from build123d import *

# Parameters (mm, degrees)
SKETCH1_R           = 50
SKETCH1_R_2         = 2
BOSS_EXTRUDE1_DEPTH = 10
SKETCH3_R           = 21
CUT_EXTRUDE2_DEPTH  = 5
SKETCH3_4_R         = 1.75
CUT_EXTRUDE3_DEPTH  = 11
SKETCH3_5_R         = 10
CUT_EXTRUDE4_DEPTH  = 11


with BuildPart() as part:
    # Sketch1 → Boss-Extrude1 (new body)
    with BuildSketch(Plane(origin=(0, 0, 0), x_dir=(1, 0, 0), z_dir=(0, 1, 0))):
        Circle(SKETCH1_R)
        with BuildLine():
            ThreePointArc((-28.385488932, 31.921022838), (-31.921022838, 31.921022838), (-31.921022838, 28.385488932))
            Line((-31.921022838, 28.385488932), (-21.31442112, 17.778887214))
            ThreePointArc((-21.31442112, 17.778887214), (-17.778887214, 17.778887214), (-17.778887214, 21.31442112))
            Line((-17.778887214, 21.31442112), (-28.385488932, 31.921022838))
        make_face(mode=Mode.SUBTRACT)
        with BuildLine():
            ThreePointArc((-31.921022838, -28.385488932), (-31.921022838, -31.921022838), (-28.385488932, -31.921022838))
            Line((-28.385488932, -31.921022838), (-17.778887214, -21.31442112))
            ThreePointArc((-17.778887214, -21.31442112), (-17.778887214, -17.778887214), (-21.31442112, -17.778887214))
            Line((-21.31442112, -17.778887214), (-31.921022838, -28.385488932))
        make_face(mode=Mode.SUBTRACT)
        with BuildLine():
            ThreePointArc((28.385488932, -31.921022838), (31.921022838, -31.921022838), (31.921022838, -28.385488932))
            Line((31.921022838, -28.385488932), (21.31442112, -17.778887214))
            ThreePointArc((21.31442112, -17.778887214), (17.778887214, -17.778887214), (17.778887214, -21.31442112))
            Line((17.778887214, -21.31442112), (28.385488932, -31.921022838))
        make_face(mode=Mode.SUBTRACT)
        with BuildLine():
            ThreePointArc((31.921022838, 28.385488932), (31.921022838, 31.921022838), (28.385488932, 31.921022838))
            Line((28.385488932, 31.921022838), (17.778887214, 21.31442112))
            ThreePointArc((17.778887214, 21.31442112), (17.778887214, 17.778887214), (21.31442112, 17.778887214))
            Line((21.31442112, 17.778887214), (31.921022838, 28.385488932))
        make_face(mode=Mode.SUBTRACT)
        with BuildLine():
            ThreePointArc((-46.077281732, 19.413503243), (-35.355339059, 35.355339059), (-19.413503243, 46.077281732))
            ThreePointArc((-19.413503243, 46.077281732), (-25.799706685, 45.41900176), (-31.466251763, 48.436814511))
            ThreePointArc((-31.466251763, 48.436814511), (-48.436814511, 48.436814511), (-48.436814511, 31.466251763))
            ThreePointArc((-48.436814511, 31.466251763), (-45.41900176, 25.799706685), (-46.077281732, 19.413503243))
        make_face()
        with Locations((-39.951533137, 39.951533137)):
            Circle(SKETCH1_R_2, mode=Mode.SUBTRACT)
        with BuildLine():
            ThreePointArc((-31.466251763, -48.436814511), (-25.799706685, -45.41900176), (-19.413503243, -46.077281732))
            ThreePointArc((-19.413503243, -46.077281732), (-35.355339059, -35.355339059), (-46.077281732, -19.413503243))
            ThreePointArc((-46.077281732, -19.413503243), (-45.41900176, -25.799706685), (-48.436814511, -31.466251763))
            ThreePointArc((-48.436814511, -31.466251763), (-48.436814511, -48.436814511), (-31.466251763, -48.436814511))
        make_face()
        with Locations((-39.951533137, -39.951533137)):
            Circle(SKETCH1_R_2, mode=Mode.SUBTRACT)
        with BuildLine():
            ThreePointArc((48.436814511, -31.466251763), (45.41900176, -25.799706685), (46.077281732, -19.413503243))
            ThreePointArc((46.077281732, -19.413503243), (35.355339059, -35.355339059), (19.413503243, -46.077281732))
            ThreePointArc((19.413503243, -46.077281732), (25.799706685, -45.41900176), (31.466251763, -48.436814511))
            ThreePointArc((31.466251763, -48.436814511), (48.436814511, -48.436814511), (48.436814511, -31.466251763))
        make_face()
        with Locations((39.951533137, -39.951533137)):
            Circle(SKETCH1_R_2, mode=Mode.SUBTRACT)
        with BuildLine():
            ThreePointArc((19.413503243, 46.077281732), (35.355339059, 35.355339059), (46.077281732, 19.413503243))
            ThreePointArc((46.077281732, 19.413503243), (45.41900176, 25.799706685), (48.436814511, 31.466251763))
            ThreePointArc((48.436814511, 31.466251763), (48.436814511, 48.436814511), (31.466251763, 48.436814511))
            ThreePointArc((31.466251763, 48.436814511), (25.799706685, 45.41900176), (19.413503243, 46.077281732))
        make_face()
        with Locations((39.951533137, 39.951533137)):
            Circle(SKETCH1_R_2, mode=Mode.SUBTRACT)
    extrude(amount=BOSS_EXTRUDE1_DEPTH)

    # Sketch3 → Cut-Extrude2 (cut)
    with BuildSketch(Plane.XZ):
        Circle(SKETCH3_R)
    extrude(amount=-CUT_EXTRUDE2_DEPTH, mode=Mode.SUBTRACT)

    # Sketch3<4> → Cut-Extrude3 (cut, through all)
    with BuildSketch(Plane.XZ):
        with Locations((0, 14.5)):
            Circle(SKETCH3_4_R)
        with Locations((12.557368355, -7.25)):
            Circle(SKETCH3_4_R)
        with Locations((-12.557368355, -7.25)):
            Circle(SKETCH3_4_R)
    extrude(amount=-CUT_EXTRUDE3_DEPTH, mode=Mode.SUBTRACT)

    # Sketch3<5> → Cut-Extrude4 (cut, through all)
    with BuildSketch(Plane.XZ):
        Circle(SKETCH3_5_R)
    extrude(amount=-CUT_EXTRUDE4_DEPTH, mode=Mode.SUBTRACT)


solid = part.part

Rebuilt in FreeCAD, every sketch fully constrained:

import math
import FreeCAD as App
import Part
import Sketcher
from FreeCAD import Vector
Q = App.Units.Quantity

doc = App.newDocument("Part")
body = doc.addObject("PartDesign::Body", "Body")

sketch1 = doc.addObject("Sketcher::SketchObject", "Sketch")
body.addObject(sketch1)
sketch1.AttachmentSupport = (doc.XZ_Plane, [""])
sketch1.MapMode = "FlatFace"
sketch1.addGeometry([
    Part.ArcOfCircle(Part.Circle(Vector(-23.7, -56.2, 0), Vector(0, 0, 1), 11), math.radians(67), math.radians(135)),
    Part.ArcOfCircle(Part.Circle(Vector(-40, -40, 0), Vector(0, 0, 1), 12), math.radians(135), math.radians(315)),
    Part.ArcOfCircle(Part.Circle(Vector(-56.2, -23.7, 0), Vector(0, 0, 1), 11), math.radians(-45), math.radians(23)),
    Part.ArcOfCircle(Part.Circle(Vector(0, 0, 0), Vector(0, 0, 1), 50), math.radians(157), math.radians(203)),
    Part.ArcOfCircle(Part.Circle(Vector(-56.2, 23.7, 0), Vector(0, 0, 1), 11), math.radians(-23), math.radians(45)),
    Part.ArcOfCircle(Part.Circle(Vector(-40, 40, 0), Vector(0, 0, 1), 12), math.radians(45), math.radians(225)),
    Part.ArcOfCircle(Part.Circle(Vector(-23.7, 56.2, 0), Vector(0, 0, 1), 11), math.radians(-135), math.radians(-67)),
    Part.ArcOfCircle(Part.Circle(Vector(0, 0, 0), Vector(0, 0, 1), 50), math.radians(67), math.radians(113)),
    Part.ArcOfCircle(Part.Circle(Vector(23.7, 56.2, 0), Vector(0, 0, 1), 11), math.radians(-113), math.radians(-45)),
    Part.ArcOfCircle(Part.Circle(Vector(40, 40, 0), Vector(0, 0, 1), 12), math.radians(-45), math.radians(135)),
    Part.ArcOfCircle(Part.Circle(Vector(56.2, 23.7, 0), Vector(0, 0, 1), 11), math.radians(135), math.radians(203)),
    Part.ArcOfCircle(Part.Circle(Vector(0, 0, 0), Vector(0, 0, 1), 50), math.radians(-23), math.radians(23)),
    Part.ArcOfCircle(Part.Circle(Vector(56.2, -23.7, 0), Vector(0, 0, 1), 11), math.radians(157), math.radians(225)),
    Part.ArcOfCircle(Part.Circle(Vector(40, -40, 0), Vector(0, 0, 1), 12), math.radians(-135), math.radians(45)),
    Part.ArcOfCircle(Part.Circle(Vector(23.7, -56.2, 0), Vector(0, 0, 1), 11), math.radians(45), math.radians(113)),
    Part.ArcOfCircle(Part.Circle(Vector(0, 0, 0), Vector(0, 0, 1), 50), math.radians(-113), math.radians(-67)),
    Part.Circle(Vector(-40, 40, 0), Vector(0, 0, 1), 2),
    Part.ArcOfCircle(Part.Circle(Vector(-30.2, 30.2, 0), Vector(0, 0, 1), 2.5), math.radians(45), math.radians(225)),
    Part.LineSegment(Vector(-31.9, 28.4, 0), Vector(-21.3, 17.8, 0)),
    Part.ArcOfCircle(Part.Circle(Vector(-19.5, 19.5, 0), Vector(0, 0, 1), 2.5), math.radians(-135), math.radians(45)),
    Part.LineSegment(Vector(-17.8, 21.3, 0), Vector(-28.4, 31.9, 0)),
    Part.Circle(Vector(40, 40, 0), Vector(0, 0, 1), 2),
    Part.ArcOfCircle(Part.Circle(Vector(30.2, 30.2, 0), Vector(0, 0, 1), 2.5), math.radians(-45), math.radians(135)),
    Part.LineSegment(Vector(28.4, 31.9, 0), Vector(17.8, 21.3, 0)),
    Part.ArcOfCircle(Part.Circle(Vector(19.5, 19.5, 0), Vector(0, 0, 1), 2.5), math.radians(135), math.radians(315)),
    Part.LineSegment(Vector(21.3, 17.8, 0), Vector(31.9, 28.4, 0)),
    Part.ArcOfCircle(Part.Circle(Vector(-30.2, -30.2, 0), Vector(0, 0, 1), 2.5), math.radians(135), math.radians(315)),
    Part.LineSegment(Vector(-28.4, -31.9, 0), Vector(-17.8, -21.3, 0)),
    Part.ArcOfCircle(Part.Circle(Vector(-19.5, -19.5, 0), Vector(0, 0, 1), 2.5), math.radians(-45), math.radians(135)),
    Part.LineSegment(Vector(-21.3, -17.8, 0), Vector(-31.9, -28.4, 0)),
    Part.Circle(Vector(-40, -40, 0), Vector(0, 0, 1), 2),
    Part.ArcOfCircle(Part.Circle(Vector(30.2, -30.2, 0), Vector(0, 0, 1), 2.5), math.radians(-135), math.radians(45)),
    Part.LineSegment(Vector(31.9, -28.4, 0), Vector(21.3, -17.8, 0)),
    Part.ArcOfCircle(Part.Circle(Vector(19.5, -19.5, 0), Vector(0, 0, 1), 2.5), math.radians(45), math.radians(225)),
    Part.LineSegment(Vector(17.8, -21.3, 0), Vector(28.4, -31.9, 0)),
    Part.Circle(Vector(40, -40, 0), Vector(0, 0, 1), 2),
], False)
sketch1.addConstraint([
    Sketcher.Constraint("Tangent", 0, 2, 1, 2),
    Sketcher.Constraint("Tangent", 1, 1, 2, 1),
    Sketcher.Constraint("Tangent", 2, 2, 3, 2),
    Sketcher.Constraint("Tangent", 3, 1, 4, 1),
    Sketcher.Constraint("Tangent", 4, 2, 5, 2),
    Sketcher.Constraint("Tangent", 5, 1, 6, 1),
    Sketcher.Constraint("Tangent", 6, 2, 7, 2),
    Sketcher.Constraint("Tangent", 7, 1, 8, 1),
    Sketcher.Constraint("Tangent", 8, 2, 9, 2),
    Sketcher.Constraint("Tangent", 9, 1, 10, 1),
    Sketcher.Constraint("Tangent", 10, 2, 11, 2),
    Sketcher.Constraint("Tangent", 11, 1, 12, 1),
    Sketcher.Constraint("Tangent", 12, 2, 13, 2),
    Sketcher.Constraint("Tangent", 13, 1, 14, 1),
    Sketcher.Constraint("Tangent", 14, 2, 15, 2),
    Sketcher.Constraint("Tangent", 15, 1, 0, 1),
    Sketcher.Constraint("Tangent", 17, 2, 18, 1),
    Sketcher.Constraint("Tangent", 18, 2, 19, 1),
    Sketcher.Constraint("Tangent", 19, 2, 20, 1),
    Sketcher.Constraint("Tangent", 20, 2, 17, 1),
    Sketcher.Constraint("Tangent", 22, 2, 23, 1),
    Sketcher.Constraint("Tangent", 23, 2, 24, 1),
    Sketcher.Constraint("Tangent", 24, 2, 25, 1),
    Sketcher.Constraint("Tangent", 25, 2, 22, 1),
    Sketcher.Constraint("Tangent", 26, 2, 27, 1),
    Sketcher.Constraint("Tangent", 27, 2, 28, 1),
    Sketcher.Constraint("Tangent", 28, 2, 29, 1),
    Sketcher.Constraint("Tangent", 29, 2, 26, 1),
    Sketcher.Constraint("Tangent", 31, 2, 32, 1),
    Sketcher.Constraint("Tangent", 32, 2, 33, 1),
    Sketcher.Constraint("Tangent", 33, 2, 34, 1),
    Sketcher.Constraint("Tangent", 34, 2, 31, 1),
    Sketcher.Constraint("Coincident", 3, 3, -1, 1),
    Sketcher.Constraint("Coincident", 7, 3, -1, 1),
    Sketcher.Constraint("Coincident", 11, 3, -1, 1),
    Sketcher.Constraint("Coincident", 15, 3, -1, 1),
    Sketcher.Constraint("Coincident", 16, 3, 5, 3),
    Sketcher.Constraint("Coincident", 21, 3, 9, 3),
    Sketcher.Constraint("Coincident", 30, 3, 1, 3),
    Sketcher.Constraint("Coincident", 35, 3, 13, 3),
    Sketcher.Constraint("Equal", 0, 2),
    Sketcher.Constraint("Equal", 2, 4),
    Sketcher.Constraint("Equal", 1, 5),
    Sketcher.Constraint("Equal", 4, 6),
    Sketcher.Constraint("Equal", 3, 7),
    Sketcher.Constraint("Equal", 6, 8),
    Sketcher.Constraint("Equal", 5, 9),
    Sketcher.Constraint("Equal", 8, 10),
    Sketcher.Constraint("Equal", 7, 11),
    Sketcher.Constraint("Equal", 10, 12),
    Sketcher.Constraint("Equal", 9, 13),
    Sketcher.Constraint("Equal", 12, 14),
    Sketcher.Constraint("Equal", 11, 15),
    Sketcher.Constraint("Equal", 17, 19),
    Sketcher.Constraint("Equal", 16, 21),
    Sketcher.Constraint("Equal", 19, 22),
    Sketcher.Constraint("Equal", 22, 24),
    Sketcher.Constraint("Equal", 24, 26),
    Sketcher.Constraint("Equal", 26, 28),
    Sketcher.Constraint("Equal", 21, 30),
    Sketcher.Constraint("Equal", 28, 31),
    Sketcher.Constraint("Equal", 31, 33),
    Sketcher.Constraint("Equal", 30, 35),
    Sketcher.Constraint("Symmetric", 1, 3, 9, 3, -1, 1),
    Sketcher.Constraint("Symmetric", 5, 3, 13, 3, -1, 1),
    Sketcher.Constraint("Symmetric", 22, 3, 26, 3, -1, 1),
    Sketcher.Constraint("Symmetric", 24, 3, 28, 3, -1, 1),
    Sketcher.Constraint("Symmetric", 17, 3, 31, 3, -1, 1),
    Sketcher.Constraint("Symmetric", 19, 3, 33, 3, -1, 1),
    Sketcher.Constraint("Symmetric", 5, 3, 9, 3, -2),
    Sketcher.Constraint("Symmetric", 17, 3, 22, 3, -2),
    Sketcher.Constraint("Symmetric", 19, 3, 24, 3, -2),
    Sketcher.Constraint("Perpendicular", 20, 23),
    Sketcher.Constraint("Diameter", 16, Q("4 mm")),
    Sketcher.Constraint("Radius", 1, Q("12 mm")),
    Sketcher.Constraint("Radius", 3, Q("50 mm")),
    Sketcher.Constraint("Radius", 17, Q("2.5 mm")),
    Sketcher.Constraint("Distance", 18, Q("15 mm")),
    Sketcher.Constraint("Radius", 0, Q("11.003289 mm")),
    Sketcher.Constraint("DistanceX", 0, 2, 0, 3, Q("7.780501 mm")),
    Sketcher.Constraint("DistanceX", 2, 3, 1, 1, Q("7.780501 mm")),
    Sketcher.Constraint("DistanceY", -1, 1, 17, 2, Q("28.385489 mm")),
    Sketcher.Constraint("DistanceX", 18, 2, -1, 1, Q("21.314421 mm")),
])
pad1 = doc.addObject("PartDesign::Pad", "Pad")
body.addObject(pad1)
pad1.Profile = sketch1
pad1.Length = 10
pad1.Reversed = True

sketch2 = doc.addObject("Sketcher::SketchObject", "Sketch001")
body.addObject(sketch2)
sketch2.AttachmentSupport = (doc.XZ_Plane, [""])
sketch2.MapMode = "FlatFace"
sketch2.addGeometry(Part.Circle(Vector(0, 0, 0), Vector(0, 0, 1), 21), False)
sketch2.addConstraint([
    Sketcher.Constraint("Coincident", 0, 3, -1, 1),
    Sketcher.Constraint("Diameter", 0, Q("42 mm")),
])
pocket1 = doc.addObject("PartDesign::Pocket", "Pocket")
body.addObject(pocket1)
pocket1.Profile = sketch2
pocket1.Length = 5

sketch3 = doc.addObject("Sketcher::SketchObject", "Sketch002")
body.addObject(sketch3)
sketch3.AttachmentSupport = (doc.XZ_Plane, [""])
sketch3.MapMode = "FlatFace"
sketch3.addGeometry([
    Part.Circle(Vector(0, 14.5, 0), Vector(0, 0, 1), 1.8),
    Part.Circle(Vector(12.6, -7.2, 0), Vector(0, 0, 1), 1.8),
    Part.Circle(Vector(-12.6, -7.2, 0), Vector(0, 0, 1), 1.8),
], False)
sketch3.addConstraint([
    Sketcher.Constraint("Equal", 0, 1),
    Sketcher.Constraint("Equal", 1, 2),
    Sketcher.Constraint("Symmetric", 1, 3, 2, 3, -2),
    Sketcher.Constraint("PointOnObject", 0, 3, -2),
    Sketcher.Constraint("Diameter", 0, Q("3.5 mm")),
    Sketcher.Constraint("DistanceY", -1, 1, 0, 3, Q("14.5 mm")),
    Sketcher.Constraint("DistanceY", 1, 3, -1, 1, Q("7.25 mm")),
    Sketcher.Constraint("DistanceX", -1, 1, 1, 3, Q("12.557368 mm")),
])
pocket2 = doc.addObject("PartDesign::Pocket", "Pocket001")
body.addObject(pocket2)
pocket2.Profile = sketch3
pocket2.Type = "ThroughAll"

sketch4 = doc.addObject("Sketcher::SketchObject", "Sketch003")
body.addObject(sketch4)
sketch4.AttachmentSupport = (doc.XZ_Plane, [""])
sketch4.MapMode = "FlatFace"
sketch4.addGeometry(Part.Circle(Vector(0, 0, 0), Vector(0, 0, 1), 10), False)
sketch4.addConstraint([
    Sketcher.Constraint("Coincident", 0, 3, -1, 1),
    Sketcher.Constraint("Diameter", 0, Q("20 mm")),
])
pocket3 = doc.addObject("PartDesign::Pocket", "Pocket002")
body.addObject(pocket3)
pocket3.Profile = sketch4
pocket3.Type = "ThroughAll"

doc.recompute()
